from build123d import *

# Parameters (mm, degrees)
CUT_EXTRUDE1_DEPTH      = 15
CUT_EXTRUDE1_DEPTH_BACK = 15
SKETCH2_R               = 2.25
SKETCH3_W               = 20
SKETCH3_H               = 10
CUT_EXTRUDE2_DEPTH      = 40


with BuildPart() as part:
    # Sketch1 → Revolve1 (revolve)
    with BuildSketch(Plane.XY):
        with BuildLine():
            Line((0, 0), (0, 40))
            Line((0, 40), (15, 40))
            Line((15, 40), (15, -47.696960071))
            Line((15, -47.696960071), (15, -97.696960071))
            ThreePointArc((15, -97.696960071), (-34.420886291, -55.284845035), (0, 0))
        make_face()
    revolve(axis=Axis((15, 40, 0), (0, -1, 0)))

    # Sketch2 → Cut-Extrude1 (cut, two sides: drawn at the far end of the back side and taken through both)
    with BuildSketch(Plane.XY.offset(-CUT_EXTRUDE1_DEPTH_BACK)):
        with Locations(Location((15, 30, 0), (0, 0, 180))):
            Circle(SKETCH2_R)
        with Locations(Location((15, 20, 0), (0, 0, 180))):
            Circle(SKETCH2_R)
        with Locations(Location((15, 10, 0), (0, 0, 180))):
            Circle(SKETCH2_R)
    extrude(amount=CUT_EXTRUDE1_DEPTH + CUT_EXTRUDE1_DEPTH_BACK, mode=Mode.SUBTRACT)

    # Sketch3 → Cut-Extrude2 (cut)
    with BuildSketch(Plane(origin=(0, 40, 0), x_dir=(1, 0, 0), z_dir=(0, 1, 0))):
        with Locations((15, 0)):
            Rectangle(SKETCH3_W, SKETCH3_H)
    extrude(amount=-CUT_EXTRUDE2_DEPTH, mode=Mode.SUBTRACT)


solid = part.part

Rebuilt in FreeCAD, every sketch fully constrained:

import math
import FreeCAD as App
import Part
import Sketcher

doc = App.newDocument("Part")
body = doc.addObject("PartDesign::Body", "Body")

sketch1 = body.newObject("Sketcher::SketchObject", "Sketch")
sketch1.AttachmentSupport = (doc.getObject("XY_Plane"), [""])
sketch1.MapMode = "FlatFace"
sketch1.addGeometry([
    Part.LineSegment(App.Vector(0, 40, 0), App.Vector(0, 0, 0)),
    Part.ArcOfCircle(Part.Circle(App.Vector(15, -48, 0), App.Vector(0, 0, 1), 50), math.radians(107), math.radians(270)),
    Part.LineSegment(App.Vector(15, -98, 0), App.Vector(15, 40, 0)),
    Part.LineSegment(App.Vector(15, 40, 0), App.Vector(0, 40, 0)),
], False)
sketch1.addGeometry(Part.LineSegment(App.Vector(15, 40, 0), App.Vector(15, -98, 0)), True)
sketch1.addConstraint([
    Sketcher.Constraint("Coincident", 0, 2, 1, 1),
    Sketcher.Constraint("Coincident", 1, 2, 2, 1),
    Sketcher.Constraint("Coincident", 2, 2, 3, 1),
    Sketcher.Constraint("Coincident", 3, 2, 0, 1),
    Sketcher.Constraint("Vertical", 0),
    Sketcher.Constraint("Vertical", 2),
    Sketcher.Constraint("Horizontal", 3),
    Sketcher.Constraint("Vertical", 4),
    Sketcher.Constraint("Coincident", 0, 2, -1, 1),
    Sketcher.Constraint("Coincident", 4, 1, 2, 2),
    Sketcher.Constraint("Equal", 2, 4),
    Sketcher.Constraint("Radius", 1, 50.0),
    Sketcher.Constraint("DistanceX", 3, 2, 3, 1, 15.0),
    Sketcher.Constraint("DistanceY", 0, 2, 0, 1, 40.0),
    Sketcher.Constraint("DistanceX", -1, 1, 1, 3, 15.0),
])
revolution = body.newObject("PartDesign::Revolution", "Revolution")
revolution.Profile = sketch1
revolution.ReferenceAxis = (sketch1, ["Axis0"])
revolution.Angle = 360

sketch2 = body.newObject("Sketcher::SketchObject", "Sketch001")
sketch2.AttachmentSupport = (doc.getObject("XY_Plane"), [""])
sketch2.MapMode = "FlatFace"
sketch2.addGeometry([
    Part.Circle(App.Vector(15, 30, 0), App.Vector(0, 0, 1), 2.2),
    Part.Circle(App.Vector(15, 20, 0), App.Vector(0, 0, 1), 2.2),
    Part.Circle(App.Vector(15, 10, 0), App.Vector(0, 0, 1), 2.2),
], False)
sketch2.addConstraint([
    Sketcher.Constraint("Equal", 0, 1),
    Sketcher.Constraint("Equal", 1, 2),
    Sketcher.Constraint("Vertical", 0, 3, 1, 3),
    Sketcher.Constraint("Vertical", 1, 3, 2, 3),
    Sketcher.Constraint("Diameter", 0, 4.5),
    Sketcher.Constraint("DistanceX", -1, 1, 0, 3, 15.0),
    Sketcher.Constraint("DistanceY", -1, 1, 0, 3, 30.0),
    Sketcher.Constraint("DistanceY", -1, 1, 1, 3, 20.0),
    Sketcher.Constraint("DistanceY", -1, 1, 2, 3, 10.0),
])
pocket1 = body.newObject("PartDesign::Pocket", "Pocket")
pocket1.Profile = sketch2
pocket1.Type = "ThroughAll"
pocket1.Midplane = True

sketch3 = body.newObject("Sketcher::SketchObject", "Sketch002")
sketch3.AttachmentSupport = (doc.getObject("XZ_Plane"), [""])
sketch3.MapMode = "FlatFace"
sketch3.AttachmentOffset = App.Placement(App.Vector(0, 0, -40), App.Rotation())
sketch3.addGeometry([
    Part.LineSegment(App.Vector(5, -5, 0), App.Vector(5, 5, 0)),
    Part.LineSegment(App.Vector(5, 5, 0), App.Vector(25, 5, 0)),
    Part.LineSegment(App.Vector(25, 5, 0), App.Vector(25, -5, 0)),
    Part.LineSegment(App.Vector(25, -5, 0), App.Vector(5, -5, 0)),
], False)
sketch3.addConstraint([
    Sketcher.Constraint("Coincident", 0, 2, 1, 1),
    Sketcher.Constraint("Coincident", 1, 2, 2, 1),
    Sketcher.Constraint("Coincident", 2, 2, 3, 1),
    Sketcher.Constraint("Coincident", 3, 2, 0, 1),
    Sketcher.Constraint("Vertical", 0),
    Sketcher.Constraint("Horizontal", 1),
    Sketcher.Constraint("Vertical", 2),
    Sketcher.Constraint("Horizontal", 3),
    Sketcher.Constraint("DistanceX", 1, 1, 1, 2, 20.0),
    Sketcher.Constraint("DistanceY", 0, 1, 0, 2, 10.0),
    Sketcher.Constraint("DistanceX", -1, 1, 0, 2, 5.0),
    Sketcher.Constraint("DistanceY", -1, 1, 0, 2, 5.0),
])
pocket2 = body.newObject("PartDesign::Pocket", "Pocket001")
pocket2.Profile = sketch3
pocket2.Length = 40
pocket2.Reversed = True

doc.recompute()
